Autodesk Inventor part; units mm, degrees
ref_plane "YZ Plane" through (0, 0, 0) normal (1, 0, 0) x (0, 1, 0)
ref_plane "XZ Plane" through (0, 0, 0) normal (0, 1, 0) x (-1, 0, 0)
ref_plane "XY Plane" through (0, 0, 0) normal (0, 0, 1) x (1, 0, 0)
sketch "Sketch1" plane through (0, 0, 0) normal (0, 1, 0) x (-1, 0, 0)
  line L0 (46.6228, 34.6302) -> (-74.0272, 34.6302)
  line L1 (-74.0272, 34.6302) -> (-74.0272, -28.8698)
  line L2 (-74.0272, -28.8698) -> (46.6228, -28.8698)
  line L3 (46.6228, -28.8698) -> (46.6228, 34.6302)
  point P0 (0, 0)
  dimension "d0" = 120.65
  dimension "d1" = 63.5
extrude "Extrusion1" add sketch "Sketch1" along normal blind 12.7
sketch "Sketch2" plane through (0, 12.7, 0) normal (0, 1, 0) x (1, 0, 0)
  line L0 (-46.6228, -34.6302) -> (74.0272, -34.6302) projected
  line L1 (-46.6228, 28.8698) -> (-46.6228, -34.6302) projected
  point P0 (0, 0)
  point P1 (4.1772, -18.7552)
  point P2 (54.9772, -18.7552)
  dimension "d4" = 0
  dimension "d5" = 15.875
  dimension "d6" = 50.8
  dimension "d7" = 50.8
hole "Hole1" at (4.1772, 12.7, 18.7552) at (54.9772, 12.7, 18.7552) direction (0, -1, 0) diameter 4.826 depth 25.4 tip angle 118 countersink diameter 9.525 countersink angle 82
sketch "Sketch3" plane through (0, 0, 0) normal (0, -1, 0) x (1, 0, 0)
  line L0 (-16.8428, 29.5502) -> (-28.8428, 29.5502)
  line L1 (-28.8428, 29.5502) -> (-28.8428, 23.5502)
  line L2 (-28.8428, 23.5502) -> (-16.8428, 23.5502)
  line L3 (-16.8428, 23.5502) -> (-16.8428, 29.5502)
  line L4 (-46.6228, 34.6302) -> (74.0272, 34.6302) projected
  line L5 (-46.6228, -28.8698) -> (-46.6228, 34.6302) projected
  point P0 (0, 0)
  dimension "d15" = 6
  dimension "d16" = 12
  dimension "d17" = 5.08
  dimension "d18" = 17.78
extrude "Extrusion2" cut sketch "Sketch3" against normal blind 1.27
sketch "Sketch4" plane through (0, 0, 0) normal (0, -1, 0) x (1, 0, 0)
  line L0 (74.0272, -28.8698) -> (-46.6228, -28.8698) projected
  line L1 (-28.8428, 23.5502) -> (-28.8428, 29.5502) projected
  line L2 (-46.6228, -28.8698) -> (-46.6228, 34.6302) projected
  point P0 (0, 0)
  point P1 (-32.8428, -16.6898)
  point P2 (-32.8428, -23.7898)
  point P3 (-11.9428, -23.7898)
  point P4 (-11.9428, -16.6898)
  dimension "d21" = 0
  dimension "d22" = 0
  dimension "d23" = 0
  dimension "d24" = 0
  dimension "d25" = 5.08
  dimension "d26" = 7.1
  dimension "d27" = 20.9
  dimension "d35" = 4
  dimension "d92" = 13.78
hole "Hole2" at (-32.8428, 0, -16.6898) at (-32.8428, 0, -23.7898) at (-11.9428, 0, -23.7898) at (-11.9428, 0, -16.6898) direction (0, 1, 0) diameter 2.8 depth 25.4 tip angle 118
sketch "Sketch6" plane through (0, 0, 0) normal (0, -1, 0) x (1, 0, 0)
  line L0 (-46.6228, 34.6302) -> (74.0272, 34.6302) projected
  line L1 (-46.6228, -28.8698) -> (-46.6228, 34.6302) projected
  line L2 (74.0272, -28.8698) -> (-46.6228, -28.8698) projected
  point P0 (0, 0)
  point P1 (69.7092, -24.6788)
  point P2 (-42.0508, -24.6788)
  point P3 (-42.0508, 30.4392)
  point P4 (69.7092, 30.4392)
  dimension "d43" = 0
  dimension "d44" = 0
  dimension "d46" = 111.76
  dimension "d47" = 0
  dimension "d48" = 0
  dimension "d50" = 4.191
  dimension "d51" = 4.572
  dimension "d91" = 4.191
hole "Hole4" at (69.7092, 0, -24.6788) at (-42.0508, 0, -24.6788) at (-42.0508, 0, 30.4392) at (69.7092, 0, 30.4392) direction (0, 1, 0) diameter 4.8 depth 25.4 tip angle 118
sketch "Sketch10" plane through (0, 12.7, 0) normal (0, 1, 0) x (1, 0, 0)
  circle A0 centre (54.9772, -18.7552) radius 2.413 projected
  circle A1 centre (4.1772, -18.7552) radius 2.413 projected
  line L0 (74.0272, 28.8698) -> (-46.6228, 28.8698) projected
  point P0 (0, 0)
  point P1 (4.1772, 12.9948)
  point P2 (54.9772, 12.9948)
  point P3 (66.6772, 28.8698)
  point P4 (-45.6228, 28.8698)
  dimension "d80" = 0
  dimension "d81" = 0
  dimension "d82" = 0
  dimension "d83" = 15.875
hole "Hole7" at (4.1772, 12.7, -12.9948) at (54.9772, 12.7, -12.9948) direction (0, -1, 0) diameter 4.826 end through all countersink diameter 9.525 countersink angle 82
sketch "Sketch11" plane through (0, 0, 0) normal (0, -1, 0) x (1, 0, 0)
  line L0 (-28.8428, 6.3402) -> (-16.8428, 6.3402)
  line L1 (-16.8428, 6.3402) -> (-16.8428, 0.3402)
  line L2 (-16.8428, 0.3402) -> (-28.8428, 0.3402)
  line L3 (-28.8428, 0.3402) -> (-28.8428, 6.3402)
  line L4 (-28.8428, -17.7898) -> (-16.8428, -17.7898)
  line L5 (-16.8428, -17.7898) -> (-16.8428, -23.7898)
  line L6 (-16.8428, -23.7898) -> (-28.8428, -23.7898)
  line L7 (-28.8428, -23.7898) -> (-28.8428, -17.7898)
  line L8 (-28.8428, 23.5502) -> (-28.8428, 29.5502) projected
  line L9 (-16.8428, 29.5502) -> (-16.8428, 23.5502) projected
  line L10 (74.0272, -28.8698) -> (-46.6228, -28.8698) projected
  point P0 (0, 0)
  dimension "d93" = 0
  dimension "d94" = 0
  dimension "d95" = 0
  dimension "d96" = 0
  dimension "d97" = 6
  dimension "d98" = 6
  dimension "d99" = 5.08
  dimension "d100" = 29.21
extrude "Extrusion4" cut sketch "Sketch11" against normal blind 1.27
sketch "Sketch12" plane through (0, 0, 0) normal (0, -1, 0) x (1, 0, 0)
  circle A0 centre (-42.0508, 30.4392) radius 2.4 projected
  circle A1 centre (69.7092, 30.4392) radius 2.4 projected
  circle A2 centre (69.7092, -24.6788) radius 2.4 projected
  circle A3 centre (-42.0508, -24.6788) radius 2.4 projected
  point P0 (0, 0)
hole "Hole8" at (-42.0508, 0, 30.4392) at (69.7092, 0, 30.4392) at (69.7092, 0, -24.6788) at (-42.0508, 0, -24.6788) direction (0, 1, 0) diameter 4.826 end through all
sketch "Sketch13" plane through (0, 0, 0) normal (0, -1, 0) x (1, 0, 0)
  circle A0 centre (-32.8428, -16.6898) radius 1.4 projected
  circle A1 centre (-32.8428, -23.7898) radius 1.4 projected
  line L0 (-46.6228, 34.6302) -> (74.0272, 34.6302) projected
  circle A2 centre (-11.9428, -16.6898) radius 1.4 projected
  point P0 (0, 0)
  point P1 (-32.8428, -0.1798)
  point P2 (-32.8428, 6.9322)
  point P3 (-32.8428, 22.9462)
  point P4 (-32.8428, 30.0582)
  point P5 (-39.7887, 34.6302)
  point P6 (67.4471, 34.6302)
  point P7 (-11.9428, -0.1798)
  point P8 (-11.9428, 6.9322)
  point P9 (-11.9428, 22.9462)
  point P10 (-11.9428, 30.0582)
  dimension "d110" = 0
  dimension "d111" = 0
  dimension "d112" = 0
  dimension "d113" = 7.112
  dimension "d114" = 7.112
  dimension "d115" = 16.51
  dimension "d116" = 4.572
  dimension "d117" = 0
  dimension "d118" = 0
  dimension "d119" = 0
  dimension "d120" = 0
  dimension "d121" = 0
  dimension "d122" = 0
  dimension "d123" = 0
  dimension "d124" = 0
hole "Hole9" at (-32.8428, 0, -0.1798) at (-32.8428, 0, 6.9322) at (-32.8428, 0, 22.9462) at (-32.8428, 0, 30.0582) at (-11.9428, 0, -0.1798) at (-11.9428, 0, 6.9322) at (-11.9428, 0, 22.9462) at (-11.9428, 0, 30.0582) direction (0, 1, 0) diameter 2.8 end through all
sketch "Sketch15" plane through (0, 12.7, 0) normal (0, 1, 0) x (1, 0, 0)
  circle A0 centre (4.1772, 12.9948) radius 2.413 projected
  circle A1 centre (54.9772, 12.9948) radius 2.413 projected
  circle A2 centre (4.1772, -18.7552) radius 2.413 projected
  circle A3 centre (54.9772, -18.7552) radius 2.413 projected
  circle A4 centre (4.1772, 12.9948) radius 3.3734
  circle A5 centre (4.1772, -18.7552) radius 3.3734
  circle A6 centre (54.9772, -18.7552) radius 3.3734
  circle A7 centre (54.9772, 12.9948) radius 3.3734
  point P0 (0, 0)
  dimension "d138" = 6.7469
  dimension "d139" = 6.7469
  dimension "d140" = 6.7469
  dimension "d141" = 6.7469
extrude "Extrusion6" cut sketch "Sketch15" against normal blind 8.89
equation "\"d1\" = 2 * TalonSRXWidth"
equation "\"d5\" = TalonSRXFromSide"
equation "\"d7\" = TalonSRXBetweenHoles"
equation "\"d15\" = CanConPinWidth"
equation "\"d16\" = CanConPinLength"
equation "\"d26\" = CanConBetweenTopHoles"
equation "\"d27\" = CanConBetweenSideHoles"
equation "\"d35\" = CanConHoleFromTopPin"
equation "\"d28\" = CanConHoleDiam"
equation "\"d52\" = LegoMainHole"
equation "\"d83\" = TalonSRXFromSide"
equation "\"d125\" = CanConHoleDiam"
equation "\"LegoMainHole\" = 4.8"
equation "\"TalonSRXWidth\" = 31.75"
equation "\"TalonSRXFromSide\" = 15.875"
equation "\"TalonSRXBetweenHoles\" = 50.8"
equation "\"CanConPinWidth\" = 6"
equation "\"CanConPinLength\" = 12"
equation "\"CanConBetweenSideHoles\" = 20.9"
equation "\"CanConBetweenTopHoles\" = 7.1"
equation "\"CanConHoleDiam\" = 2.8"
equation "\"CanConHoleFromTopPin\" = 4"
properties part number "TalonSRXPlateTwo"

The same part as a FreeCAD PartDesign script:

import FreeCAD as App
import Part
import Sketcher
Q = App.Units.Quantity

doc = App.newDocument("Part")
body = doc.addObject("PartDesign::Body", "Body")

# Sketch on XZ plane
sketch1 = body.newObject("Sketcher::SketchObject", "Sketch")
sketch1.AttachmentSupport = (doc.getObject("XZ_Plane"), [""])
sketch1.MapMode = "FlatFace"
sketch1.addGeometry([
    Part.LineSegment(App.Vector(-46.6228, -28.8698, 0), App.Vector(-46.6228, 34.6302, 0)),
    Part.LineSegment(App.Vector(-46.6228, 34.6302, 0), App.Vector(74.0272, 34.6302, 0)),
    Part.LineSegment(App.Vector(74.0272, 34.6302, 0), App.Vector(74.0272, -28.8698, 0)),
    Part.LineSegment(App.Vector(74.0272, -28.8698, 0), App.Vector(-46.6228, -28.8698, 0)),
], False)
sketch1.addConstraint([
    Sketcher.Constraint("Coincident", 0, 2, 1, 1),
    Sketcher.Constraint("Coincident", 1, 2, 2, 1),
    Sketcher.Constraint("Coincident", 2, 2, 3, 1),
    Sketcher.Constraint("Coincident", 3, 2, 0, 1),
    Sketcher.Constraint("Vertical", 0),
    Sketcher.Constraint("Horizontal", 1),
    Sketcher.Constraint("Vertical", 2),
    Sketcher.Constraint("Horizontal", 3),
    Sketcher.Constraint("DistanceY", 0, 1, 0, 2, Q("2.5 in")),
    Sketcher.Constraint("DistanceX", 1, 1, 1, 2, Q("4.75 in")),
    Sketcher.Constraint("DistanceY", -1, 1, 0, 2, Q("1.3634 in")),
    Sketcher.Constraint("DistanceX", 0, 2, -1, 1, 46.6228),
])
pad1 = body.newObject("PartDesign::Pad", "Pad")
pad1.Profile = sketch1
pad1.Length = Q("0.5 in")
pad1.Reversed = True

# Sketch on XZ plane
sketch2 = body.newObject("Sketcher::SketchObject", "Sketch001")
sketch2.AttachmentSupport = (doc.getObject("XZ_Plane"), [""])
sketch2.MapMode = "FlatFace"
sketch2.AttachmentOffset = App.Placement(App.Vector(0, 0, -0.5 * 25.4), App.Rotation())
sketch2.addGeometry([
    Part.Circle(App.Vector(4.1772, 18.7552, 0), App.Vector(0, 0, 1), 2.413),
    Part.Circle(App.Vector(54.9772, 18.7552, 0), App.Vector(0, 0, 1), 2.413),
], False)
sketch2.addConstraint([
    Sketcher.Constraint("Equal", 0, 1),
    Sketcher.Constraint("Horizontal", 0, 3, 1, 3),
    Sketcher.Constraint("Diameter", 0, Q("0.19 in")),
    Sketcher.Constraint("DistanceX", 0, 3, 1, 3, Q("2 in")),
    Sketcher.Constraint("DistanceY", -1, 1, 0, 3, Q("0.7384 in")),
    Sketcher.Constraint("DistanceX", -1, 1, 0, 3, 4.1772),
])
doc.recompute()
hole = body.newObject("PartDesign::Hole", "Hole")
hole.Profile = sketch2
hole.ThreadType = "None"
hole.Diameter = Q("0.19 in")
hole.DepthType = "Dimension"
hole.Depth = Q("1 in")
hole.DrillPoint = "Angled"
hole.DrillPointAngle = 118
hole.HoleCutType = "Countersink"
hole.HoleCutDiameter = Q("0.375 in")
hole.HoleCutCountersinkAngle = 82
hole.Reversed = True

# Sketch on XZ plane
sketch3 = body.newObject("Sketcher::SketchObject", "Sketch002")
sketch3.AttachmentSupport = (doc.getObject("XZ_Plane"), [""])
sketch3.MapMode = "FlatFace"
sketch3.addGeometry([
    Part.LineSegment(App.Vector(-16.8428, 23.5502, 0), App.Vector(-16.8428, 29.5502, 0)),
    Part.LineSegment(App.Vector(-16.8428, 29.5502, 0), App.Vector(-28.8428, 29.5502, 0)),
    Part.LineSegment(App.Vector(-28.8428, 29.5502, 0), App.Vector(-28.8428, 23.5502, 0)),
    Part.LineSegment(App.Vector(-28.8428, 23.5502, 0), App.Vector(-16.8428, 23.5502, 0)),
], False)
sketch3.addConstraint([
    Sketcher.Constraint("Coincident", 0, 2, 1, 1),
    Sketcher.Constraint("Coincident", 1, 2, 2, 1),
    Sketcher.Constraint("Coincident", 2, 2, 3, 1),
    Sketcher.Constraint("Coincident", 3, 2, 0, 1),
    Sketcher.Constraint("Vertical", 0),
    Sketcher.Constraint("Horizontal", 1),
    Sketcher.Constraint("Vertical", 2),
    Sketcher.Constraint("Horizontal", 3),
    Sketcher.Constraint("DistanceX", 1, 2, 1, 1, 12.0),
    Sketcher.Constraint("DistanceY", 0, 1, 0, 2, 6.0),
    Sketcher.Constraint("DistanceX", 0, 2, -1, 1, Q("0.6631 in")),
    Sketcher.Constraint("DistanceY", -1, 1, 0, 2, Q("1.1634 in")),
])
pocket1 = body.newObject("PartDesign::Pocket", "Pocket")
pocket1.Profile = sketch3
pocket1.Length = Q("0.05 in")

# Sketch on XZ plane
sketch4 = body.newObject("Sketcher::SketchObject", "Sketch003")
sketch4.AttachmentSupport = (doc.getObject("XZ_Plane"), [""])
sketch4.MapMode = "FlatFace"
sketch4.addGeometry([
    Part.Circle(App.Vector(-32.8428, -16.6898, 0), App.Vector(0, 0, 1), 1.4),
    Part.Circle(App.Vector(-32.8428, -23.7898, 0), App.Vector(0, 0, 1), 1.4),
    Part.Circle(App.Vector(-11.9428, -23.7898, 0), App.Vector(0, 0, 1), 1.4),
    Part.Circle(App.Vector(-11.9428, -16.6898, 0), App.Vector(0, 0, 1), 1.4),
], False)
sketch4.addConstraint([
    Sketcher.Constraint("Equal", 0, 1),
    Sketcher.Constraint("Equal", 1, 2),
    Sketcher.Constraint("Equal", 2, 3),
    Sketcher.Constraint("Horizontal", 1, 3, 2, 3),
    Sketcher.Constraint("Horizontal", 0, 3, 3, 3),
    Sketcher.Constraint("Vertical", 0, 3, 1, 3),
    Sketcher.Constraint("Vertical", 2, 3, 3, 3),
    Sketcher.Constraint("Diameter", 0, 2.8),
    Sketcher.Constraint("DistanceY", 1, 3, -1, 1, Q("0.9366 in")),
    Sketcher.Constraint("DistanceX", 2, 3, -1, 1, Q("0.4702 in")),
    Sketcher.Constraint("DistanceX", 0, 3, -1, 1, 32.8428),
    Sketcher.Constraint("DistanceY", 0, 3, -1, 1, 16.6898),
])
doc.recompute()
hole2 = body.newObject("PartDesign::Hole", "Hole001")
hole2.Profile = sketch4
hole2.ThreadType = "None"
hole2.Diameter = 2.8
hole2.DepthType = "Dimension"
hole2.Depth = Q("1 in")
hole2.DrillPoint = "Angled"
hole2.DrillPointAngle = 118

# Sketch on XZ plane
sketch5 = body.newObject("Sketcher::SketchObject", "Sketch004")
sketch5.AttachmentSupport = (doc.getObject("XZ_Plane"), [""])
sketch5.MapMode = "FlatFace"
sketch5.addGeometry([
    Part.Circle(App.Vector(69.7092, -24.6788, 0), App.Vector(0, 0, 1), 2.4),
    Part.Circle(App.Vector(-42.0508, -24.6788, 0), App.Vector(0, 0, 1), 2.4),
    Part.Circle(App.Vector(-42.0508, 30.4392, 0), App.Vector(0, 0, 1), 2.4),
    Part.Circle(App.Vector(69.7092, 30.4392, 0), App.Vector(0, 0, 1), 2.4),
], False)
sketch5.addConstraint([
    Sketcher.Constraint("Equal", 0, 1),
    Sketcher.Constraint("Equal", 1, 2),
    Sketcher.Constraint("Equal", 2, 3),
    Sketcher.Constraint("Horizontal", 0, 3, 1, 3),
    Sketcher.Constraint("Horizontal", 2, 3, 3, 3),
    Sketcher.Constraint("Vertical", 1, 3, 2, 3),
    Sketcher.Constraint("Vertical", 0, 3, 3, 3),
    Sketcher.Constraint("DistanceX", 1, 3, 0, 3, Q("4.4 in")),
    Sketcher.Constraint("Diameter", 0, 4.8),
    Sketcher.Constraint("DistanceY", 1, 3, 2, 3, Q("2.17 in")),
    Sketcher.Constraint("DistanceY", 0, 3, -1, 1, Q("0.9716 in")),
    Sketcher.Constraint("DistanceX", -1, 1, 0, 3, 69.7092),
])
doc.recompute()
hole3 = body.newObject("PartDesign::Hole", "Hole002")
hole3.Profile = sketch5
hole3.ThreadType = "None"
hole3.Diameter = 4.8
hole3.DepthType = "Dimension"
hole3.Depth = Q("1 in")
hole3.DrillPoint = "Angled"
hole3.DrillPointAngle = 118

# Sketch on XZ plane
sketch6 = body.newObject("Sketcher::SketchObject", "Sketch005")
sketch6.AttachmentSupport = (doc.getObject("XZ_Plane"), [""])
sketch6.MapMode = "FlatFace"
sketch6.AttachmentOffset = App.Placement(App.Vector(0, 0, -0.5 * 25.4), App.Rotation())
sketch6.addGeometry([
    Part.Circle(App.Vector(4.1772, -12.9948, 0), App.Vector(0, 0, 1), 2.413),
    Part.Circle(App.Vector(54.9772, -12.9948, 0), App.Vector(0, 0, 1), 2.413),
], False)
sketch6.addConstraint([
    Sketcher.Constraint("Equal", 0, 1),
    Sketcher.Constraint("Horizontal", 0, 3, 1, 3),
    Sketcher.Constraint("Diameter", 0, Q("0.19 in")),
    Sketcher.Constraint("DistanceX", 0, 3, 1, 3, Q("2 in")),
    Sketcher.Constraint("DistanceY", 0, 3, -1, 1, Q("0.5116 in")),
    Sketcher.Constraint("DistanceX", -1, 1, 0, 3, 4.1772),
])
doc.recompute()
hole4 = body.newObject("PartDesign::Hole", "Hole003")
hole4.Profile = sketch6
hole4.ThreadType = "None"
hole4.Diameter = Q("0.19 in")
hole4.DepthType = "ThroughAll"
hole4.HoleCutType = "Countersink"
hole4.HoleCutDiameter = Q("0.375 in")
hole4.HoleCutCountersinkAngle = 82
hole4.Reversed = True

# Sketch on XZ plane
sketch7 = body.newObject("Sketcher::SketchObject", "Sketch006")
sketch7.AttachmentSupport = (doc.getObject("XZ_Plane"), [""])
sketch7.MapMode = "FlatFace"
sketch7.addGeometry([
    Part.LineSegment(App.Vector(-16.8428, 6.3402, 0), App.Vector(-28.8428, 6.3402, 0)),  # 0
    Part.LineSegment(App.Vector(-28.8428, 6.3402, 0), App.Vector(-28.8428, 0.3402, 0)),  # 1
    Part.LineSegment(App.Vector(-28.8428, 0.3402, 0), App.Vector(-16.8428, 0.3402, 0)),  # 2
    Part.LineSegment(App.Vector(-16.8428, 0.3402, 0), App.Vector(-16.8428, 6.3402, 0)),  # 3
    Part.LineSegment(App.Vector(-16.8428, -17.7898, 0), App.Vector(-28.8428, -17.7898, 0)),  # 4
    Part.LineSegment(App.Vector(-28.8428, -17.7898, 0), App.Vector(-28.8428, -23.7898, 0)),  # 5
    Part.LineSegment(App.Vector(-28.8428, -23.7898, 0), App.Vector(-16.8428, -23.7898, 0)),  # 6
    Part.LineSegment(App.Vector(-16.8428, -23.7898, 0), App.Vector(-16.8428, -17.7898, 0)),  # 7
], False)
sketch7.addConstraint([
    Sketcher.Constraint("Coincident", 0, 2, 1, 1),
    Sketcher.Constraint("Coincident", 1, 2, 2, 1),
    Sketcher.Constraint("Coincident", 2, 2, 3, 1),
    Sketcher.Constraint("Coincident", 3, 2, 0, 1),
    Sketcher.Constraint("Coincident", 4, 2, 5, 1),
    Sketcher.Constraint("Coincident", 5, 2, 6, 1),
    Sketcher.Constraint("Coincident", 6, 2, 7, 1),
    Sketcher.Constraint("Coincident", 7, 2, 4, 1),
    Sketcher.Constraint("Horizontal", 0),
    Sketcher.Constraint("Vertical", 1),
    Sketcher.Constraint("Horizontal", 2),
    Sketcher.Constraint("Vertical", 3),
    Sketcher.Constraint("Horizontal", 4),
    Sketcher.Constraint("Vertical", 5),
    Sketcher.Constraint("Horizontal", 6),
    Sketcher.Constraint("Vertical", 7),
    Sketcher.Constraint("Vertical", 1, 2, 4, 2),
    Sketcher.Constraint("Vertical", 3, 2, 6, 2),
    Sketcher.Constraint("Equal", 3, 5),
    Sketcher.Constraint("DistanceY", 1, 2, 1, 1, 6.0),
    Sketcher.Constraint("DistanceY", 4, 2, 0, 2, Q("0.95 in")),
    Sketcher.Constraint("DistanceX", 0, 2, 0, 1, 12.0),
    Sketcher.Constraint("DistanceY", -1, 1, 1, 2, Q("0.0134 in")),
    Sketcher.Constraint("DistanceX", 2, 2, -1, 1, Q("0.6631 in")),
])
pocket2 = body.newObject("PartDesign::Pocket", "Pocket001")
pocket2.Profile = sketch7
pocket2.Length = Q("0.05 in")

# Sketch on XZ plane
sketch8 = body.newObject("Sketcher::SketchObject", "Sketch007")
sketch8.AttachmentSupport = (doc.getObject("XZ_Plane"), [""])
sketch8.MapMode = "FlatFace"
sketch8.addGeometry([
    Part.Circle(App.Vector(-42.0508, 30.4392, 0), App.Vector(0, 0, 1), 2.413),
    Part.Circle(App.Vector(69.7092, 30.4392, 0), App.Vector(0, 0, 1), 2.413),
    Part.Circle(App.Vector(69.7092, -24.6788, 0), App.Vector(0, 0, 1), 2.413),
    Part.Circle(App.Vector(-42.0508, -24.6788, 0), App.Vector(0, 0, 1), 2.413),
], False)
sketch8.addConstraint([
    Sketcher.Constraint("Equal", 0, 1),
    Sketcher.Constraint("Equal", 1, 2),
    Sketcher.Constraint("Equal", 2, 3),
    Sketcher.Constraint("Horizontal", 0, 3, 1, 3),
    Sketcher.Constraint("Horizontal", 2, 3, 3, 3),
    Sketcher.Constraint("Vertical", 1, 3, 2, 3),
    Sketcher.Constraint("Vertical", 0, 3, 3, 3),
    Sketcher.Constraint("Diameter", 0, Q("0.19 in")),
    Sketcher.Constraint("DistanceX", 0, 3, 1, 3, Q("4.4 in")),
    Sketcher.Constraint("DistanceY", 2, 3, 1, 3, Q("2.17 in")),
    Sketcher.Constraint("DistanceY", -1, 1, 0, 3, Q("1.1984 in")),
    Sketcher.Constraint("DistanceX", 0, 3, -1, 1, 42.0508),
])
doc.recompute()
hole5 = body.newObject("PartDesign::Hole", "Hole004")
hole5.Profile = sketch8
hole5.ThreadType = "None"
hole5.Diameter = Q("0.19 in")
hole5.DepthType = "ThroughAll"

# Sketch on XZ plane
sketch9 = body.newObject("Sketcher::SketchObject", "Sketch008")
sketch9.AttachmentSupport = (doc.getObject("XZ_Plane"), [""])
sketch9.MapMode = "FlatFace"
sketch9.addGeometry([
    Part.Circle(App.Vector(-32.8428, -0.1798, 0), App.Vector(0, 0, 1), 1.4),  # 0
    Part.Circle(App.Vector(-32.8428, 6.9322, 0), App.Vector(0, 0, 1), 1.4),  # 1
    Part.Circle(App.Vector(-32.8428, 22.9462, 0), App.Vector(0, 0, 1), 1.4),  # 2
    Part.Circle(App.Vector(-32.8428, 30.0582, 0), App.Vector(0, 0, 1), 1.4),  # 3
    Part.Circle(App.Vector(-11.9428, -0.1798, 0), App.Vector(0, 0, 1), 1.4),  # 4
    Part.Circle(App.Vector(-11.9428, 6.9322, 0), App.Vector(0, 0, 1), 1.4),  # 5
    Part.Circle(App.Vector(-11.9428, 22.9462, 0), App.Vector(0, 0, 1), 1.4),  # 6
    Part.Circle(App.Vector(-11.9428, 30.0582, 0), App.Vector(0, 0, 1), 1.4),  # 7
], False)
sketch9.addConstraint([
    Sketcher.Constraint("Equal", 0, 1),
    Sketcher.Constraint("Equal", 1, 2),
    Sketcher.Constraint("Equal", 2, 3),
    Sketcher.Constraint("Equal", 3, 4),
    Sketcher.Constraint("Equal", 4, 5),
    Sketcher.Constraint("Equal", 5, 6),
    Sketcher.Constraint("Equal", 6, 7),
    Sketcher.Constraint("Horizontal", 0, 3, 4, 3),
    Sketcher.Constraint("Horizontal", 1, 3, 5, 3),
    Sketcher.Constraint("Horizontal", 2, 3, 6, 3),
    Sketcher.Constraint("Horizontal", 3, 3, 7, 3),
    Sketcher.Constraint("Vertical", 0, 3, 1, 3),
    Sketcher.Constraint("Vertical", 1, 3, 2, 3),
    Sketcher.Constraint("Vertical", 2, 3, 3, 3),
    Sketcher.Constraint("Vertical", 4, 3, 5, 3),
    Sketcher.Constraint("Vertical", 5, 3, 6, 3),
    Sketcher.Constraint("Vertical", 6, 3, 7, 3),
    Sketcher.Constraint("Diameter", 0, 2.8),
    Sketcher.Constraint("DistanceY", 0, 3, 1, 3, Q("0.28 in")),
    Sketcher.Constraint("DistanceY", 2, 3, 3, 3, Q("0.28 in")),
    Sketcher.Constraint("DistanceY", -1, 1, 2, 3, Q("0.9034 in")),
    Sketcher.Constraint("DistanceX", 4, 3, -1, 1, Q("0.4702 in")),
    Sketcher.Constraint("DistanceX", 0, 3, -1, 1, 32.8428),
    Sketcher.Constraint("DistanceY", 0, 3, -1, 1, 0.1798),
])
doc.recompute()
hole6 = body.newObject("PartDesign::Hole", "Hole005")
hole6.Profile = sketch9
hole6.ThreadType = "None"
hole6.Diameter = 2.8
hole6.DepthType = "ThroughAll"

# Sketch on XZ plane
sketch10 = body.newObject("Sketcher::SketchObject", "Sketch009")
sketch10.AttachmentSupport = (doc.getObject("XZ_Plane"), [""])
sketch10.MapMode = "FlatFace"
sketch10.AttachmentOffset = App.Placement(App.Vector(0, 0, -0.5 * 25.4), App.Rotation())
sketch10.addGeometry([
    Part.Circle(App.Vector(4.1772, -12.9948, 0), App.Vector(0, 0, 1), 3.3734),  # 0
    Part.Circle(App.Vector(4.1772, -12.9948, 0), App.Vector(0, 0, 1), 2.413),  # 1
    Part.Circle(App.Vector(4.1772, 18.7552, 0), App.Vector(0, 0, 1), 3.3734),  # 2
    Part.Circle(App.Vector(4.1772, 18.7552, 0), App.Vector(0, 0, 1), 2.413),  # 3
    Part.Circle(App.Vector(54.9772, 18.7552, 0), App.Vector(0, 0, 1), 3.3734),  # 4
    Part.Circle(App.Vector(54.9772, 18.7552, 0), App.Vector(0, 0, 1), 2.413),  # 5
    Part.Circle(App.Vector(54.9772, -12.9948, 0), App.Vector(0, 0, 1), 3.3734),  # 6
    Part.Circle(App.Vector(54.9772, -12.9948, 0), App.Vector(0, 0, 1), 2.413),  # 7
], False)
sketch10.addConstraint([
    Sketcher.Constraint("Coincident", 1, 3, 0, 3),
    Sketcher.Constraint("Coincident", 3, 3, 2, 3),
    Sketcher.Constraint("Coincident", 5, 3, 4, 3),
    Sketcher.Constraint("Coincident", 7, 3, 6, 3),
    Sketcher.Constraint("Equal", 0, 2),
    Sketcher.Constraint("Equal", 1, 3),
    Sketcher.Constraint("Equal", 2, 4),
    Sketcher.Constraint("Equal", 3, 5),
    Sketcher.Constraint("Equal", 4, 6),
    Sketcher.Constraint("Equal", 5, 7),
    Sketcher.Constraint("Horizontal", 3, 3, 4, 3),
    Sketcher.Constraint("Horizontal", 1, 3, 6, 3),
    Sketcher.Constraint("Vertical", 1, 3, 2, 3),
    Sketcher.Constraint("Vertical", 5, 3, 6, 3),
    Sketcher.Constraint("Diameter", 0, Q("0.265622 in")),
    Sketcher.Constraint("Diameter", 1, Q("0.19 in")),
    Sketcher.Constraint("DistanceX", 2, 3, 4, 3, Q("2 in")),
    Sketcher.Constraint("DistanceY", 0, 3, 2, 3, Q("1.25 in")),
    Sketcher.Constraint("DistanceY", 0, 3, -1, 1, Q("0.5116 in")),
    Sketcher.Constraint("DistanceX", -1, 1, 0, 3, 4.1772),
])
pocket3 = body.newObject("PartDesign::Pocket", "Pocket002")
pocket3.Profile = sketch10
pocket3.Length = Q("0.35 in")
pocket3.Reversed = True

doc.recompute()
